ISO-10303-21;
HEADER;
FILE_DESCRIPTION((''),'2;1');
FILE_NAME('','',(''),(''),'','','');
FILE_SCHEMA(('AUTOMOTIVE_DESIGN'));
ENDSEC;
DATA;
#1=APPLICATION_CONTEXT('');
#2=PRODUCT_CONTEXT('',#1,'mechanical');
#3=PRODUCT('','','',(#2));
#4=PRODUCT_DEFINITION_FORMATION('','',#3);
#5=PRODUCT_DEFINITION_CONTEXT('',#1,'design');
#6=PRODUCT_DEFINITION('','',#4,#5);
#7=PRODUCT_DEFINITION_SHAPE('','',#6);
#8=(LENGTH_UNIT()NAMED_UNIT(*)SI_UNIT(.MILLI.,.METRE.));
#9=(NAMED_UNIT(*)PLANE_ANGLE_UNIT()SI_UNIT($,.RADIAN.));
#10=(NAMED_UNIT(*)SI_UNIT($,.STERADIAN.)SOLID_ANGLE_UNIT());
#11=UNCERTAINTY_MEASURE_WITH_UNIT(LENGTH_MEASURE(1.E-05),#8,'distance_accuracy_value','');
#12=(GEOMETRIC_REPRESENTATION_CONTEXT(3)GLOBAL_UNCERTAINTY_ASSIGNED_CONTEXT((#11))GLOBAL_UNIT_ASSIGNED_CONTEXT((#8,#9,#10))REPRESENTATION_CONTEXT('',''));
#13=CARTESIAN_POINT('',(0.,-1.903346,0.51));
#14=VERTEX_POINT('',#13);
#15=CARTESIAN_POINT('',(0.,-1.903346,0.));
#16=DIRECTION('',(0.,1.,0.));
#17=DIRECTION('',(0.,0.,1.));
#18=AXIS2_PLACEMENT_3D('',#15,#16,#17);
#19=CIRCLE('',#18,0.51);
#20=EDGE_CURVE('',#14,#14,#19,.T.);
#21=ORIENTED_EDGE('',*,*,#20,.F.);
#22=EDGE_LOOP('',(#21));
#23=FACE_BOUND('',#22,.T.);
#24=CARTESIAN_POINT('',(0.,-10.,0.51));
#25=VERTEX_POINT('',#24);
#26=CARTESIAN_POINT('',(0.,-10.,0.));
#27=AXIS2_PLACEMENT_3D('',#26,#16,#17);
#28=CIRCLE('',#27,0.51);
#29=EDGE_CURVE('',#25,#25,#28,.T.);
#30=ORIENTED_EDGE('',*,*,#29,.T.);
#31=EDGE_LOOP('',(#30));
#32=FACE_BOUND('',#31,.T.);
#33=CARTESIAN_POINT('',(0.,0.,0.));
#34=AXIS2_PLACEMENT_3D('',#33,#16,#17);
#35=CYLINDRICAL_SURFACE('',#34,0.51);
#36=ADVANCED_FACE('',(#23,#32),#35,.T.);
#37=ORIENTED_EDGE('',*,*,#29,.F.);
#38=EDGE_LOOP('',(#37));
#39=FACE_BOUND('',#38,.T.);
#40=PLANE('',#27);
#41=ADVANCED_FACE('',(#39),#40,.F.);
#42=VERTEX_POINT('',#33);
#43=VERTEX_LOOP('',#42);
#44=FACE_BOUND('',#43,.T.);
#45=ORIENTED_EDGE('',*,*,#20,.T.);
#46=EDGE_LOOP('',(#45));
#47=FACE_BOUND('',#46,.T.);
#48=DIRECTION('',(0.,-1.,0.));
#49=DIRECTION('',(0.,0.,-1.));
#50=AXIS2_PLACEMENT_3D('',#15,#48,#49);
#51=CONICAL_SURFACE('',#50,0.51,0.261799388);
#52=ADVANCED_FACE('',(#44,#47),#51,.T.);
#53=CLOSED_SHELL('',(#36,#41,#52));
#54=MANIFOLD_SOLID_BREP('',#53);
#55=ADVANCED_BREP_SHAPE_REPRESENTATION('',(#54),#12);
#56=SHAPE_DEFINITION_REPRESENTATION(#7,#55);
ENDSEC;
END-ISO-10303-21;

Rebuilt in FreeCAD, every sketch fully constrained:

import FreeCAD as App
import Part
import Sketcher
from FreeCAD import Vector
Q = App.Units.Quantity


def add_polygon(sketch, points):
    """Adds a closed chain of lines whose ends are joined by coincident constraints."""
    first, n = sketch.GeometryCount, len(points)
    for a, b in zip(points, points[1:] + points[:1]):
        sketch.addGeometry(Part.LineSegment(App.Vector(*a, 0), App.Vector(*b, 0)), False)
    for i in range(n):
        sketch.addConstraint(Sketcher.Constraint("Coincident", first + i, 2, first + (i + 1) % n, 1))

doc = App.newDocument("Part")
body = doc.addObject("PartDesign::Body", "Body")

# Sketch on YZ plane
sketch1 = body.newObject("Sketcher::SketchObject", "Sketch")
sketch1.AttachmentSupport = (doc.getObject("YZ_Plane"), [""])
sketch1.MapMode = "FlatFace"
add_polygon(sketch1, [(0, 0), (-10, 0), (-10, -0.5), (-1.9, -0.5)])  # lines 0-3
sketch1.addConstraint(Sketcher.Constraint("Horizontal", 0))
sketch1.addConstraint(Sketcher.Constraint("Vertical", 1))
sketch1.addConstraint(Sketcher.Constraint("Horizontal", 2))
sketch1.addConstraint(Sketcher.Constraint("Coincident", 3, 2, -1, 1))
sketch1.addConstraint(Sketcher.Constraint("DistanceX", 0, 2, 0, 1, 10.0))
sketch1.addConstraint(Sketcher.Constraint("Angle", 3, Q("15 deg")))
sketch1.addConstraint(Sketcher.Constraint("DistanceY", 1, 2, 1, 1, 0.51))
revolution = body.newObject("PartDesign::Revolution", "Revolution")
revolution.Profile = sketch1
revolution.ReferenceAxis = (sketch1, ["H_Axis"])
revolution.Angle = 360

doc.recompute()
